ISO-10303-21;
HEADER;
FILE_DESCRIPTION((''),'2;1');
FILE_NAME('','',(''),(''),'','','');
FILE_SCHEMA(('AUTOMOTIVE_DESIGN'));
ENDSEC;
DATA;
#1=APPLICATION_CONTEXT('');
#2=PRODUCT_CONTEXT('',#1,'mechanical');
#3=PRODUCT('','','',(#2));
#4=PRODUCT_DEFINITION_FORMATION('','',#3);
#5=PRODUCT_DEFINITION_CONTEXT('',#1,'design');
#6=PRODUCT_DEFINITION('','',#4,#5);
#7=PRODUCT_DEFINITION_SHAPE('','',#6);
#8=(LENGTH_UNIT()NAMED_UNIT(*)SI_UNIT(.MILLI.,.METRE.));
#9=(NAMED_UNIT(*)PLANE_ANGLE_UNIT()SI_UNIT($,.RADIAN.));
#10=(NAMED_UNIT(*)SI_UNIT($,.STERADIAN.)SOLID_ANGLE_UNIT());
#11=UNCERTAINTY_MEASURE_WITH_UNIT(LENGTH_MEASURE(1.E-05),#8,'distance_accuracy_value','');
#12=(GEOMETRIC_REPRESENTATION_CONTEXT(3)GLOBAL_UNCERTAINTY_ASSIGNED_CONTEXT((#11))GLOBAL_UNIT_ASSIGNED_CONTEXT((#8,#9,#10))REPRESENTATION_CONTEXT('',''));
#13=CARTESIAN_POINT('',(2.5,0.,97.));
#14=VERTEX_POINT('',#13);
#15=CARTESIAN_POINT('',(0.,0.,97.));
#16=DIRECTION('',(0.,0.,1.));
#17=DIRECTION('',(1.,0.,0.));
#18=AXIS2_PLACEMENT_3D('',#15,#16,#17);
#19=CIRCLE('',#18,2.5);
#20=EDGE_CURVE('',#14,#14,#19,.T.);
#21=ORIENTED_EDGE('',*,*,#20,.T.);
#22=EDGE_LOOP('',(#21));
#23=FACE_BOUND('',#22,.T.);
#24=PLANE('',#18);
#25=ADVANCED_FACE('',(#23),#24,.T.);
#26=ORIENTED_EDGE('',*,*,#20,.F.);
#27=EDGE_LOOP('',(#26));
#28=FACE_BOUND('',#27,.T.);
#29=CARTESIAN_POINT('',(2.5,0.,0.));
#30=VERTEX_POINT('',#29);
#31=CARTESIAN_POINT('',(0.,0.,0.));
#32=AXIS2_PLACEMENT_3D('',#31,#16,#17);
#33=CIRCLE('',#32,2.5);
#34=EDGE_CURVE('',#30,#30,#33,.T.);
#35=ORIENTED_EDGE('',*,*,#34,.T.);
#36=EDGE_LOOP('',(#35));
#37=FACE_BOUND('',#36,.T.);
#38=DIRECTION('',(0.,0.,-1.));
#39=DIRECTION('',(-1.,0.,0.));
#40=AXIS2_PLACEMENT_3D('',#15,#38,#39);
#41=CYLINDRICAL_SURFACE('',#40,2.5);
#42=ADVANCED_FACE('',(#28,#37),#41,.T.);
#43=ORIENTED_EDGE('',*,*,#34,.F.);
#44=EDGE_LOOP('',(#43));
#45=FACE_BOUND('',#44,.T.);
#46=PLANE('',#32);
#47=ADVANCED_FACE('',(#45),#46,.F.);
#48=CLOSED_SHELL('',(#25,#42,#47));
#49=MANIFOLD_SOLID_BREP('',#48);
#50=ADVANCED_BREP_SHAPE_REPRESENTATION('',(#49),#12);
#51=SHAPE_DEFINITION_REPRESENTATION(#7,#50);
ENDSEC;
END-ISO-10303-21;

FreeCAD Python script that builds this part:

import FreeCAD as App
import Part
import Sketcher
from FreeCAD import Vector
Q = App.Units.Quantity

doc = App.newDocument("Part")
body = doc.addObject("PartDesign::Body", "Body")

# Sketch on XY plane
sketch1 = body.newObject("Sketcher::SketchObject", "Sketch")
sketch1.AttachmentSupport = (doc.getObject("XY_Plane"), [""])
sketch1.MapMode = "FlatFace"
sketch1.addGeometry(Part.Circle(Vector(0, 0, 0), Vector(0, 0, 1), 2.5), False)
sketch1.addConstraint(Sketcher.Constraint("Coincident", 0, 3, -1, 1))
sketch1.addConstraint(Sketcher.Constraint("Diameter", 0, Q("5 mm")))
pad1 = body.newObject("PartDesign::Pad", "Pad")
pad1.Profile = sketch1
pad1.Length = 97

doc.recompute()
